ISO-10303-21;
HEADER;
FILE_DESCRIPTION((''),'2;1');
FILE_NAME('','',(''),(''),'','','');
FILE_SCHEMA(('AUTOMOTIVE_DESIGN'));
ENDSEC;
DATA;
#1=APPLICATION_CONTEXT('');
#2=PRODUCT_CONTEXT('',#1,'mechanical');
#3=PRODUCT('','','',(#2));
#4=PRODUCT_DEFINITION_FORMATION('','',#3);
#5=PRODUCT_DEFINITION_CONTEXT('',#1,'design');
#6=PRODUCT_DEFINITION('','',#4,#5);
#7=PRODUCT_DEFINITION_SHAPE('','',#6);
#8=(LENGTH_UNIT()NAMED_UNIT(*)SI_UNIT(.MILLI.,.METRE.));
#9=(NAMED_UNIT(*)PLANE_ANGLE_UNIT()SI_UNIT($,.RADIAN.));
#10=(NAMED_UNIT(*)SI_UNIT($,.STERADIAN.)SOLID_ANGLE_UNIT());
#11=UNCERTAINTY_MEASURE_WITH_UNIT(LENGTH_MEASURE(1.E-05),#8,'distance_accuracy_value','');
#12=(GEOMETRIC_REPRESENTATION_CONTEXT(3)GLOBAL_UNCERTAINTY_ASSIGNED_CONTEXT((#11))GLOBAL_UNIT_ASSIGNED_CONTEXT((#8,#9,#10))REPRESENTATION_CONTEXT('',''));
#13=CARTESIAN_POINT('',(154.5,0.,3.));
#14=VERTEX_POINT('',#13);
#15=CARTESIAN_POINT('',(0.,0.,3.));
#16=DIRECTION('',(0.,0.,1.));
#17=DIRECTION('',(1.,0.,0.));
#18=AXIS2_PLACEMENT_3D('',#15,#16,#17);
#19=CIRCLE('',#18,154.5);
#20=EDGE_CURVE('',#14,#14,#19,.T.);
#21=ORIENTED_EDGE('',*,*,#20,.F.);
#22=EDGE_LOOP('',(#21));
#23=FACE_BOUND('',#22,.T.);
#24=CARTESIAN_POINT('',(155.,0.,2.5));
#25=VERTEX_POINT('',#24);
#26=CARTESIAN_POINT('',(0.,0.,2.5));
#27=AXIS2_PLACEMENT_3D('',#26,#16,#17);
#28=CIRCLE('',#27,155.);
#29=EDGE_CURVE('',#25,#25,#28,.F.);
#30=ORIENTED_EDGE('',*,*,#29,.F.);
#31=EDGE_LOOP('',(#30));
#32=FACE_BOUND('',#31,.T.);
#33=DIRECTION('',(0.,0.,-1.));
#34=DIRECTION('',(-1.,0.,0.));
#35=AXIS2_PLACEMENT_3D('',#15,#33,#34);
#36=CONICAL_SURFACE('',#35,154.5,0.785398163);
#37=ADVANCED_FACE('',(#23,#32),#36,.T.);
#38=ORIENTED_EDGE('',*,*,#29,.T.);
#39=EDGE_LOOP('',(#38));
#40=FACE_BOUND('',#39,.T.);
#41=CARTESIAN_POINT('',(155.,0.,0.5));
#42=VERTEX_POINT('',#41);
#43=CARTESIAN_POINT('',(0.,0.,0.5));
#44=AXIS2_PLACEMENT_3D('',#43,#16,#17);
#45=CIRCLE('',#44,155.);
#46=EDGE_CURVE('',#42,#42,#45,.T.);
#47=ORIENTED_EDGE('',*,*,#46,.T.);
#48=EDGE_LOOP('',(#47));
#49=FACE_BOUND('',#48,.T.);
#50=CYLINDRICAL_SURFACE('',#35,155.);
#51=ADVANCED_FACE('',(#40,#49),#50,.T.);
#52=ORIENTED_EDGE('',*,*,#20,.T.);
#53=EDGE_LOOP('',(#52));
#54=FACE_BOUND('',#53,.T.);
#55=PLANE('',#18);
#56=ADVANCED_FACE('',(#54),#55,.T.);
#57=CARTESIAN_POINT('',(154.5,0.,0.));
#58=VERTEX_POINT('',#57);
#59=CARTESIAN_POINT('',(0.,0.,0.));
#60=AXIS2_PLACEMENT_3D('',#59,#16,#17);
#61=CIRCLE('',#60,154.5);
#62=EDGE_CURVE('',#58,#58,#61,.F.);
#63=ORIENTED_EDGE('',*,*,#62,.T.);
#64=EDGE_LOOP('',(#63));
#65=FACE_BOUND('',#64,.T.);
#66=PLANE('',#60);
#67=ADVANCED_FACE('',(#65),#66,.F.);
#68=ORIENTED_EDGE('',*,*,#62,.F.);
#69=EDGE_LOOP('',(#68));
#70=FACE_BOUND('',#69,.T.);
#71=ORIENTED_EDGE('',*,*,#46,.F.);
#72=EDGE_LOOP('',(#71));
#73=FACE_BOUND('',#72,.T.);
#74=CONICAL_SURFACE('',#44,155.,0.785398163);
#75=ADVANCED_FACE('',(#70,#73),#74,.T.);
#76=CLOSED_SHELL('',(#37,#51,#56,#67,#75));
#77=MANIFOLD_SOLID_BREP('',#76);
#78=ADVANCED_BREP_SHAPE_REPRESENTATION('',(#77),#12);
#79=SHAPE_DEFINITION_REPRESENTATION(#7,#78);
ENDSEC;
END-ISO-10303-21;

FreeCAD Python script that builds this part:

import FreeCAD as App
import Part
import Sketcher

V = App.Vector
Q = App.Units.Quantity


def edges_at(feature, points):
    """Names of the edges that pass closest to the given points."""
    edges = feature.Shape.Edges
    near = lambda p: min(range(len(edges)), key=lambda i: edges[i].distToShape(Part.Vertex(*p))[0])
    return sorted({f"Edge{near(p) + 1}" for p in points})

doc = App.newDocument("Part")
body = doc.addObject("PartDesign::Body", "Body")

# Sketch on XY plane
sketch1 = body.newObject("Sketcher::SketchObject", "Sketch")
sketch1.AttachmentSupport = (doc.getObject("XY_Plane"), [""])
sketch1.MapMode = "FlatFace"
sketch1.addGeometry(Part.Circle(V(0, 0, 0), V(0, 0, 1), 155), False)
sketch1.addConstraint([
    Sketcher.Constraint("Coincident", 0, 3, -1, 1),
    Sketcher.Constraint("Diameter", 0, Q("310 mm")),
])
pad1 = body.newObject("PartDesign::Pad", "Pad")
pad1.Profile = sketch1
pad1.Length = 3
doc.recompute()

chamfer = body.newObject("PartDesign::Chamfer", "Chamfer")
chamfer.Base = (pad1, edges_at(pad1, [(-155, 0, 0), (-155, 0, 3)]))
chamfer.Size = 0.5

doc.recompute()
